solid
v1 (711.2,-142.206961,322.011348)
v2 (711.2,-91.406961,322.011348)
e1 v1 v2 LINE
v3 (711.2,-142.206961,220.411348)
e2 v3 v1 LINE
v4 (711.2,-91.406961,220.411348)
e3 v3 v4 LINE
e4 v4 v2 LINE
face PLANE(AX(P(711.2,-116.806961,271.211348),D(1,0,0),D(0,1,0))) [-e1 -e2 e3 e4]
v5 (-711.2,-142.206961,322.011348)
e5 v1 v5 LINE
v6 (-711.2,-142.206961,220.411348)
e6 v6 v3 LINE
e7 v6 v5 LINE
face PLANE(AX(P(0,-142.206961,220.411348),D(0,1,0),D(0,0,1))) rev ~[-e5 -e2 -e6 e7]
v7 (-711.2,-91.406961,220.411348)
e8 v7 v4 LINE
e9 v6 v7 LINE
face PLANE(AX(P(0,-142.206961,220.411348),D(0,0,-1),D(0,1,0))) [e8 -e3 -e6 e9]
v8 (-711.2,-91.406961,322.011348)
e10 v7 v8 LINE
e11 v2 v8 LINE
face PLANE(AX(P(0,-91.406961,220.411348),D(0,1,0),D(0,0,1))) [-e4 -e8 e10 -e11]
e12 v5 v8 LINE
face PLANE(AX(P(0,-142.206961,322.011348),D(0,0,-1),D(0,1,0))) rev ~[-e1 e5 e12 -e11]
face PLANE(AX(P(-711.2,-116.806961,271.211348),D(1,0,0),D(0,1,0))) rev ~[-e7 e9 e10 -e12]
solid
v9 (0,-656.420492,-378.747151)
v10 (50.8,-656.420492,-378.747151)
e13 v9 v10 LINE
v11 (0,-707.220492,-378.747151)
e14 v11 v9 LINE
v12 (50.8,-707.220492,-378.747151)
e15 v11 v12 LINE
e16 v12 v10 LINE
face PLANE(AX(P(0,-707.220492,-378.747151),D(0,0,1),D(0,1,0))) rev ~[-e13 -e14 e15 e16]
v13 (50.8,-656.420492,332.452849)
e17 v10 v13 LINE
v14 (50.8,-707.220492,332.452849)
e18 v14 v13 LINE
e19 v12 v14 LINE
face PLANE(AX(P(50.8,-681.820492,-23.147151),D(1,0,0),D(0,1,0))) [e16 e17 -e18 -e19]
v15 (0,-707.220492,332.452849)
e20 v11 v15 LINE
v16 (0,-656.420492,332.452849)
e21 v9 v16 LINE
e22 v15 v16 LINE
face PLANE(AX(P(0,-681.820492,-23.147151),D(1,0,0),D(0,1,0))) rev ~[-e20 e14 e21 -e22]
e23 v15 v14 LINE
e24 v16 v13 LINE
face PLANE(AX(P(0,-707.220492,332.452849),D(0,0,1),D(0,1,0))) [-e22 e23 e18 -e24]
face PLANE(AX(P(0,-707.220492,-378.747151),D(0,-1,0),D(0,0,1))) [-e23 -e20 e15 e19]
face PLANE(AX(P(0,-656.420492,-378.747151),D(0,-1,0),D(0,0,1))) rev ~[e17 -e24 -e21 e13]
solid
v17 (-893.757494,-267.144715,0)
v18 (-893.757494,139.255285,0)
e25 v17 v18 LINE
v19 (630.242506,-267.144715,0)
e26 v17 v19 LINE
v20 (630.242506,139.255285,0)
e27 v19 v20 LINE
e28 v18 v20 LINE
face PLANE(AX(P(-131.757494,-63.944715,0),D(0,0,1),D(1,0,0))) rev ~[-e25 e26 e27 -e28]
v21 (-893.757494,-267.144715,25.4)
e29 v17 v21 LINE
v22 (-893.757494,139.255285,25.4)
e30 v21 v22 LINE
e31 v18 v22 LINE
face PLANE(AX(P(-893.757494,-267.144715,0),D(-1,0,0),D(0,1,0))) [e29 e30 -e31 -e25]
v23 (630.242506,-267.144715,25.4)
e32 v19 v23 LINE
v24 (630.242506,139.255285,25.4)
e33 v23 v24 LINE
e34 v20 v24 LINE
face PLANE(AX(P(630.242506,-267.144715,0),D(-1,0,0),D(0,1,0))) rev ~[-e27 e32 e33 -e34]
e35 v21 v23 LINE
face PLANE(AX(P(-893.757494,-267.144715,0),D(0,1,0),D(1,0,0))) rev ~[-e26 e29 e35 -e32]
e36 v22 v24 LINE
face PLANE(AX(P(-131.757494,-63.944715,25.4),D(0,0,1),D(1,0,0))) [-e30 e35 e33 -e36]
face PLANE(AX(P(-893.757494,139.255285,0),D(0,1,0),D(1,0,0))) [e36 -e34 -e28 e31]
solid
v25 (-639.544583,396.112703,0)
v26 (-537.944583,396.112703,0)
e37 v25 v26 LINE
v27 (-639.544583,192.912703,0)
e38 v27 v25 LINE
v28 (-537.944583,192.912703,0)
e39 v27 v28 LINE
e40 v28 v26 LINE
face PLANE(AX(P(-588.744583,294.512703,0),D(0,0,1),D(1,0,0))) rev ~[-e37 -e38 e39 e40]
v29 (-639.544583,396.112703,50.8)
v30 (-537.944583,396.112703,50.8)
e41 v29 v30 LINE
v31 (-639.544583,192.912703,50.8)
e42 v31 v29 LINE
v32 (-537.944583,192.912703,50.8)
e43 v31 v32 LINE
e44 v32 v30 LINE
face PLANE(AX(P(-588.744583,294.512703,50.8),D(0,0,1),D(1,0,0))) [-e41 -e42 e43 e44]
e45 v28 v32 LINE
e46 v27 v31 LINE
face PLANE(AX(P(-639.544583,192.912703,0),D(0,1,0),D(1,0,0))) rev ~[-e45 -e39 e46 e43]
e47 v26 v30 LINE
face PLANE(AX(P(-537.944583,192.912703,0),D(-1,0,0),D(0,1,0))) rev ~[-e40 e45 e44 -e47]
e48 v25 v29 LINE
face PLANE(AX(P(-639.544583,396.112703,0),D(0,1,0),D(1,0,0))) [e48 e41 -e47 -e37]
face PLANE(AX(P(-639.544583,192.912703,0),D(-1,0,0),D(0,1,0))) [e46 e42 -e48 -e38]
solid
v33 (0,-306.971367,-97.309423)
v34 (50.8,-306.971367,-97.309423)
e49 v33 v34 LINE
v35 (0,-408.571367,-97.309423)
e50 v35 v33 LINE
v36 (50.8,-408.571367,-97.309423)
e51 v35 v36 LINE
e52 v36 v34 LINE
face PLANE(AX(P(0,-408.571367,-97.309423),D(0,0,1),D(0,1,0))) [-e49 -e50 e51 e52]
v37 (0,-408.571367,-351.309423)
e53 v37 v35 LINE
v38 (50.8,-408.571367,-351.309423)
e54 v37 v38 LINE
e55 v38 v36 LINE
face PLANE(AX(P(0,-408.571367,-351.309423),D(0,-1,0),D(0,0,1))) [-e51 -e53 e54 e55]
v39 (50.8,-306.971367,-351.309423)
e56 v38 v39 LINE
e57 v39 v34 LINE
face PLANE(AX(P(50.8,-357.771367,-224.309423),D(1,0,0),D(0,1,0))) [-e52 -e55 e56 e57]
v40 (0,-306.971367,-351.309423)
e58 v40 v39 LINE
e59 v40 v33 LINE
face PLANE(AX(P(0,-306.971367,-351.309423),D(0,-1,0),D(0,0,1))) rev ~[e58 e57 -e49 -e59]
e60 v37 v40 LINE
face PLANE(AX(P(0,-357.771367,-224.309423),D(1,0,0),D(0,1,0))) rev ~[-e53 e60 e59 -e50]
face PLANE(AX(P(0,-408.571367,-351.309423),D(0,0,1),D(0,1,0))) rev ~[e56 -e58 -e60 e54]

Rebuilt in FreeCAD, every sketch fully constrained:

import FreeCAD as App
import Part
import Sketcher
Q = App.Units.Quantity

doc = App.newDocument("Part")
params = doc.addObject("Spreadsheet::Sheet", "Params")
for row, (alias, value) in enumerate([
    ("sketch1_width", "60 in"),
    ("sketch1_height", "16 in"),
    ("pad1_length", "1 in"),
    ("sketch2_width", "4 in"),
    ("sketch2_height", "8 in"),
    ("pad2_length", "2 in"),
    ("sketch3_width", "2 in"),
    ("sketch3_width2", "4 in"),
    ("sketch3_height", "28 in"),
    ("sketch3_height2", "10 in"),
    ("pad3_length", "2 in"),
    ("sketch4_width", "2 in"),
    ("sketch4_height", "4 in"),
    ("pad4_length", "56 in"),
], start=1):
    params.set(f"A{row}", alias)
    params.set(f"B{row}", "=" + value)
    params.setAlias(f"B{row}", alias)

body = doc.addObject("PartDesign::Body", "Body")

sketch1 = doc.addObject("Sketcher::SketchObject", "Sketch")
body.addObject(sketch1)
sketch1.AttachmentSupport = (doc.XY_Plane, [""])
sketch1.MapMode = "FlatFace"
sketch1.addGeometry(Part.LineSegment(App.Vector(-894, 139, 0), App.Vector(-894, -267, 0)), False)
sketch1.addGeometry(Part.LineSegment(App.Vector(-894, -267, 0), App.Vector(630, -267, 0)), False)
sketch1.addGeometry(Part.LineSegment(App.Vector(630, -267, 0), App.Vector(630, 139, 0)), False)
sketch1.addGeometry(Part.LineSegment(App.Vector(630, 139, 0), App.Vector(-894, 139, 0)), False)
sketch1.addConstraint(Sketcher.Constraint("Coincident", 0, 2, 1, 1))
sketch1.addConstraint(Sketcher.Constraint("Coincident", 1, 2, 2, 1))
sketch1.addConstraint(Sketcher.Constraint("Coincident", 2, 2, 3, 1))
sketch1.addConstraint(Sketcher.Constraint("Coincident", 3, 2, 0, 1))
sketch1.addConstraint(Sketcher.Constraint("Vertical", 0))
sketch1.addConstraint(Sketcher.Constraint("Horizontal", 1))
sketch1.addConstraint(Sketcher.Constraint("Vertical", 2))
sketch1.addConstraint(Sketcher.Constraint("Horizontal", 3))
sketch1.addConstraint(Sketcher.Constraint("DistanceX", 1, 1, 1, 2, Q("60 in")))
sketch1.addConstraint(Sketcher.Constraint("DistanceY", 0, 2, 0, 1, Q("16 in")))
sketch1.addConstraint(Sketcher.Constraint("DistanceX", 0, 2, -1, 1, Q("893.757494 mm")))
sketch1.addConstraint(Sketcher.Constraint("DistanceY", 0, 2, -1, 1, Q("267.144715 mm")))
sketch1.setExpression("Constraints[8]", "Params.sketch1_width")
sketch1.setExpression("Constraints[9]", "Params.sketch1_height")
pad1 = doc.addObject("PartDesign::Pad", "Pad")
body.addObject(pad1)
pad1.Profile = sketch1
pad1.setExpression("Length", "Params.pad1_length")
body2 = doc.addObject("PartDesign::Body", "Body001")

sketch2 = doc.addObject("Sketcher::SketchObject", "Sketch001")
body2.addObject(sketch2)
sketch2.AttachmentSupport = (doc.getObject("XY_Plane001"), [""])
sketch2.MapMode = "FlatFace"
sketch2.addGeometry(Part.LineSegment(App.Vector(-640, 396, 0), App.Vector(-640, 193, 0)), False)
sketch2.addGeometry(Part.LineSegment(App.Vector(-640, 193, 0), App.Vector(-538, 193, 0)), False)
sketch2.addGeometry(Part.LineSegment(App.Vector(-538, 193, 0), App.Vector(-538, 396, 0)), False)
sketch2.addGeometry(Part.LineSegment(App.Vector(-538, 396, 0), App.Vector(-640, 396, 0)), False)
sketch2.addConstraint(Sketcher.Constraint("Coincident", 0, 2, 1, 1))
sketch2.addConstraint(Sketcher.Constraint("Coincident", 1, 2, 2, 1))
sketch2.addConstraint(Sketcher.Constraint("Coincident", 2, 2, 3, 1))
sketch2.addConstraint(Sketcher.Constraint("Coincident", 3, 2, 0, 1))
sketch2.addConstraint(Sketcher.Constraint("Vertical", 0))
sketch2.addConstraint(Sketcher.Constraint("Horizontal", 1))
sketch2.addConstraint(Sketcher.Constraint("Vertical", 2))
sketch2.addConstraint(Sketcher.Constraint("Horizontal", 3))
sketch2.addConstraint(Sketcher.Constraint("DistanceX", 1, 1, 1, 2, Q("4 in")))
sketch2.addConstraint(Sketcher.Constraint("DistanceY", 0, 2, 0, 1, Q("8 in")))
sketch2.addConstraint(Sketcher.Constraint("DistanceX", 0, 2, -1, 1, Q("639.544583 mm")))
sketch2.addConstraint(Sketcher.Constraint("DistanceY", -1, 1, 0, 2, Q("192.912703 mm")))
sketch2.setExpression("Constraints[8]", "Params.sketch2_width")
sketch2.setExpression("Constraints[9]", "Params.sketch2_height")
pad2 = doc.addObject("PartDesign::Pad", "Pad001")
body2.addObject(pad2)
pad2.Profile = sketch2
pad2.setExpression("Length", "Params.pad2_length")
body3 = doc.addObject("PartDesign::Body", "Body002")
body3.AllowCompound = True

sketch3 = doc.addObject("Sketcher::SketchObject", "Sketch002")
body3.addObject(sketch3)
sketch3.AttachmentSupport = (doc.getObject("YZ_Plane002"), [""])
sketch3.MapMode = "FlatFace"
sketch3.addGeometry(Part.LineSegment(App.Vector(-707, 332, 0), App.Vector(-707, -379, 0)), False)
sketch3.addGeometry(Part.LineSegment(App.Vector(-707, -379, 0), App.Vector(-656, -379, 0)), False)
sketch3.addGeometry(Part.LineSegment(App.Vector(-656, -379, 0), App.Vector(-656, 332, 0)), False)
sketch3.addGeometry(Part.LineSegment(App.Vector(-656, 332, 0), App.Vector(-707, 332, 0)), False)
sketch3.addGeometry(Part.LineSegment(App.Vector(-409, -97, 0), App.Vector(-409, -351, 0)), False)
sketch3.addGeometry(Part.LineSegment(App.Vector(-409, -351, 0), App.Vector(-307, -351, 0)), False)
sketch3.addGeometry(Part.LineSegment(App.Vector(-307, -351, 0), App.Vector(-307, -97, 0)), False)
sketch3.addGeometry(Part.LineSegment(App.Vector(-307, -97, 0), App.Vector(-409, -97, 0)), False)
sketch3.addConstraint(Sketcher.Constraint("Coincident", 0, 2, 1, 1))
sketch3.addConstraint(Sketcher.Constraint("Coincident", 1, 2, 2, 1))
sketch3.addConstraint(Sketcher.Constraint("Coincident", 2, 2, 3, 1))
sketch3.addConstraint(Sketcher.Constraint("Coincident", 3, 2, 0, 1))
sketch3.addConstraint(Sketcher.Constraint("Coincident", 4, 2, 5, 1))
sketch3.addConstraint(Sketcher.Constraint("Coincident", 5, 2, 6, 1))
sketch3.addConstraint(Sketcher.Constraint("Coincident", 6, 2, 7, 1))
sketch3.addConstraint(Sketcher.Constraint("Coincident", 7, 2, 4, 1))
sketch3.addConstraint(Sketcher.Constraint("Vertical", 0))
sketch3.addConstraint(Sketcher.Constraint("Horizontal", 1))
sketch3.addConstraint(Sketcher.Constraint("Vertical", 2))
sketch3.addConstraint(Sketcher.Constraint("Horizontal", 3))
sketch3.addConstraint(Sketcher.Constraint("Vertical", 4))
sketch3.addConstraint(Sketcher.Constraint("Horizontal", 5))
sketch3.addConstraint(Sketcher.Constraint("Vertical", 6))
sketch3.addConstraint(Sketcher.Constraint("Horizontal", 7))
sketch3.addConstraint(Sketcher.Constraint("DistanceX", 1, 1, 1, 2, Q("2 in")))
sketch3.addConstraint(Sketcher.Constraint("DistanceX", 5, 1, 5, 2, Q("4 in")))
sketch3.addConstraint(Sketcher.Constraint("DistanceY", 0, 2, 0, 1, Q("28 in")))
sketch3.addConstraint(Sketcher.Constraint("DistanceY", 4, 2, 4, 1, Q("10 in")))
sketch3.addConstraint(Sketcher.Constraint("DistanceX", 0, 2, -1, 1, Q("707.220492 mm")))
sketch3.addConstraint(Sketcher.Constraint("DistanceY", 0, 2, -1, 1, Q("378.747151 mm")))
sketch3.addConstraint(Sketcher.Constraint("DistanceY", 4, 2, 2, 2, Q("683.762272 mm")))
sketch3.addConstraint(Sketcher.Constraint("DistanceX", 4, 2, -1, 1, Q("408.571367 mm")))
sketch3.setExpression("Constraints[16]", "Params.sketch3_width")
sketch3.setExpression("Constraints[17]", "Params.sketch3_width2")
sketch3.setExpression("Constraints[18]", "Params.sketch3_height")
sketch3.setExpression("Constraints[19]", "Params.sketch3_height2")
pad3 = doc.addObject("PartDesign::Pad", "Pad002")
body3.addObject(pad3)
pad3.Profile = sketch3
pad3.setExpression("Length", "Params.pad3_length")
body4 = doc.addObject("PartDesign::Body", "Body003")

sketch4 = doc.addObject("Sketcher::SketchObject", "Sketch003")
body4.addObject(sketch4)
sketch4.AttachmentSupport = (doc.getObject("YZ_Plane003"), [""])
sketch4.MapMode = "FlatFace"
sketch4.addGeometry(Part.LineSegment(App.Vector(-142, 322, 0), App.Vector(-142, 220, 0)), False)
sketch4.addGeometry(Part.LineSegment(App.Vector(-142, 220, 0), App.Vector(-91, 220, 0)), False)
sketch4.addGeometry(Part.LineSegment(App.Vector(-91, 220, 0), App.Vector(-91, 322, 0)), False)
sketch4.addGeometry(Part.LineSegment(App.Vector(-91, 322, 0), App.Vector(-142, 322, 0)), False)
sketch4.addConstraint(Sketcher.Constraint("Coincident", 0, 2, 1, 1))
sketch4.addConstraint(Sketcher.Constraint("Coincident", 1, 2, 2, 1))
sketch4.addConstraint(Sketcher.Constraint("Coincident", 2, 2, 3, 1))
sketch4.addConstraint(Sketcher.Constraint("Coincident", 3, 2, 0, 1))
sketch4.addConstraint(Sketcher.Constraint("Vertical", 0))
sketch4.addConstraint(Sketcher.Constraint("Horizontal", 1))
sketch4.addConstraint(Sketcher.Constraint("Vertical", 2))
sketch4.addConstraint(Sketcher.Constraint("Horizontal", 3))
sketch4.addConstraint(Sketcher.Constraint("DistanceX", 1, 1, 1, 2, Q("2 in")))
sketch4.addConstraint(Sketcher.Constraint("DistanceY", 0, 2, 0, 1, Q("4 in")))
sketch4.addConstraint(Sketcher.Constraint("DistanceX", 0, 2, -1, 1, Q("142.206961 mm")))
sketch4.addConstraint(Sketcher.Constraint("DistanceY", -1, 1, 0, 2, Q("220.411348 mm")))
sketch4.setExpression("Constraints[8]", "Params.sketch4_width")
sketch4.setExpression("Constraints[9]", "Params.sketch4_height")
pad4 = doc.addObject("PartDesign::Pad", "Pad003")
body4.addObject(pad4)
pad4.Profile = sketch4
pad4.setExpression("Length", "Params.pad4_length")
pad4.Midplane = True

doc.recompute()
